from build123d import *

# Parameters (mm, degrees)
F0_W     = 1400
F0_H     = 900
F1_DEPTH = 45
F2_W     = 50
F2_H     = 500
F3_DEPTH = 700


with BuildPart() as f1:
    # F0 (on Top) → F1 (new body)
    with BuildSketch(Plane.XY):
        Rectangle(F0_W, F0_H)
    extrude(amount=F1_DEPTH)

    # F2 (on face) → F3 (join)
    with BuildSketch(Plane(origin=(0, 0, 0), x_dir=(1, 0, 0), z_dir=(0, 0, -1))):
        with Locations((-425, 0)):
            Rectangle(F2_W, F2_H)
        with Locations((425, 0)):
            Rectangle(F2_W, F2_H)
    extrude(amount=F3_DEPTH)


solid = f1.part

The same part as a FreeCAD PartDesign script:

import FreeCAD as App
import Part
import Sketcher
Q = App.Units.Quantity

doc = App.newDocument("Part")
body = doc.addObject("PartDesign::Body", "Body")

# Sketch on XY plane
sketch1 = body.newObject("Sketcher::SketchObject", "Sketch")
sketch1.AttachmentSupport = (doc.getObject("XY_Plane"), [""])
sketch1.MapMode = "FlatFace"
sketch1.addGeometry([
    Part.LineSegment(App.Vector(-700, 450, 0), App.Vector(-700, -450, 0)),
    Part.LineSegment(App.Vector(-700, -450, 0), App.Vector(700, -450, 0)),
    Part.LineSegment(App.Vector(700, -450, 0), App.Vector(700, 450, 0)),
    Part.LineSegment(App.Vector(700, 450, 0), App.Vector(-700, 450, 0)),
], False)
sketch1.addConstraint([
    Sketcher.Constraint("Coincident", 0, 2, 1, 1),
    Sketcher.Constraint("Coincident", 1, 2, 2, 1),
    Sketcher.Constraint("Coincident", 2, 2, 3, 1),
    Sketcher.Constraint("Coincident", 3, 2, 0, 1),
    Sketcher.Constraint("Vertical", 0),
    Sketcher.Constraint("Horizontal", 1),
    Sketcher.Constraint("Vertical", 2),
    Sketcher.Constraint("Horizontal", 3),
    Sketcher.Constraint("Symmetric", 0, 2, 2, 2, -1, 1),
    Sketcher.Constraint("DistanceX", 1, 1, 1, 2, Q("1400 mm")),
    Sketcher.Constraint("DistanceY", 0, 2, 0, 1, Q("900 mm")),
])
pad1 = body.newObject("PartDesign::Pad", "Pad")
pad1.Profile = sketch1
pad1.Length = 45

# Sketch on XY plane
sketch2 = body.newObject("Sketcher::SketchObject", "Sketch001")
sketch2.AttachmentSupport = (doc.getObject("XY_Plane"), [""])
sketch2.MapMode = "FlatFace"
sketch2.addGeometry([
    Part.LineSegment(App.Vector(-450, -250, 0), App.Vector(-450, 250, 0)),  # 0
    Part.LineSegment(App.Vector(-450, 250, 0), App.Vector(-400, 250, 0)),  # 1
    Part.LineSegment(App.Vector(-400, 250, 0), App.Vector(-400, -250, 0)),  # 2
    Part.LineSegment(App.Vector(-400, -250, 0), App.Vector(-450, -250, 0)),  # 3
    Part.LineSegment(App.Vector(400, -250, 0), App.Vector(400, 250, 0)),  # 4
    Part.LineSegment(App.Vector(400, 250, 0), App.Vector(450, 250, 0)),  # 5
    Part.LineSegment(App.Vector(450, 250, 0), App.Vector(450, -250, 0)),  # 6
    Part.LineSegment(App.Vector(450, -250, 0), App.Vector(400, -250, 0)),  # 7
], False)
sketch2.addConstraint([
    Sketcher.Constraint("Coincident", 0, 2, 1, 1),
    Sketcher.Constraint("Coincident", 1, 2, 2, 1),
    Sketcher.Constraint("Coincident", 2, 2, 3, 1),
    Sketcher.Constraint("Coincident", 3, 2, 0, 1),
    Sketcher.Constraint("Coincident", 4, 2, 5, 1),
    Sketcher.Constraint("Coincident", 5, 2, 6, 1),
    Sketcher.Constraint("Coincident", 6, 2, 7, 1),
    Sketcher.Constraint("Coincident", 7, 2, 4, 1),
    Sketcher.Constraint("Vertical", 0),
    Sketcher.Constraint("Horizontal", 1),
    Sketcher.Constraint("Vertical", 2),
    Sketcher.Constraint("Horizontal", 3),
    Sketcher.Constraint("Vertical", 4),
    Sketcher.Constraint("Horizontal", 5),
    Sketcher.Constraint("Vertical", 6),
    Sketcher.Constraint("Horizontal", 7),
    Sketcher.Constraint("Symmetric", 2, 2, 4, 2, -1, 1),
    Sketcher.Constraint("Symmetric", 0, 2, 6, 2, -1, 1),
    Sketcher.Constraint("Horizontal", 1, 2, 4, 2),
    Sketcher.Constraint("DistanceX", 1, 1, 1, 2, Q("50 mm")),
    Sketcher.Constraint("DistanceY", 0, 1, 0, 2, Q("500 mm")),
    Sketcher.Constraint("DistanceX", 0, 2, -1, 1, Q("450 mm")),
])
pad2 = body.newObject("PartDesign::Pad", "Pad001")
pad2.Profile = sketch2
pad2.Length = 700
pad2.Reversed = True

doc.recompute()
